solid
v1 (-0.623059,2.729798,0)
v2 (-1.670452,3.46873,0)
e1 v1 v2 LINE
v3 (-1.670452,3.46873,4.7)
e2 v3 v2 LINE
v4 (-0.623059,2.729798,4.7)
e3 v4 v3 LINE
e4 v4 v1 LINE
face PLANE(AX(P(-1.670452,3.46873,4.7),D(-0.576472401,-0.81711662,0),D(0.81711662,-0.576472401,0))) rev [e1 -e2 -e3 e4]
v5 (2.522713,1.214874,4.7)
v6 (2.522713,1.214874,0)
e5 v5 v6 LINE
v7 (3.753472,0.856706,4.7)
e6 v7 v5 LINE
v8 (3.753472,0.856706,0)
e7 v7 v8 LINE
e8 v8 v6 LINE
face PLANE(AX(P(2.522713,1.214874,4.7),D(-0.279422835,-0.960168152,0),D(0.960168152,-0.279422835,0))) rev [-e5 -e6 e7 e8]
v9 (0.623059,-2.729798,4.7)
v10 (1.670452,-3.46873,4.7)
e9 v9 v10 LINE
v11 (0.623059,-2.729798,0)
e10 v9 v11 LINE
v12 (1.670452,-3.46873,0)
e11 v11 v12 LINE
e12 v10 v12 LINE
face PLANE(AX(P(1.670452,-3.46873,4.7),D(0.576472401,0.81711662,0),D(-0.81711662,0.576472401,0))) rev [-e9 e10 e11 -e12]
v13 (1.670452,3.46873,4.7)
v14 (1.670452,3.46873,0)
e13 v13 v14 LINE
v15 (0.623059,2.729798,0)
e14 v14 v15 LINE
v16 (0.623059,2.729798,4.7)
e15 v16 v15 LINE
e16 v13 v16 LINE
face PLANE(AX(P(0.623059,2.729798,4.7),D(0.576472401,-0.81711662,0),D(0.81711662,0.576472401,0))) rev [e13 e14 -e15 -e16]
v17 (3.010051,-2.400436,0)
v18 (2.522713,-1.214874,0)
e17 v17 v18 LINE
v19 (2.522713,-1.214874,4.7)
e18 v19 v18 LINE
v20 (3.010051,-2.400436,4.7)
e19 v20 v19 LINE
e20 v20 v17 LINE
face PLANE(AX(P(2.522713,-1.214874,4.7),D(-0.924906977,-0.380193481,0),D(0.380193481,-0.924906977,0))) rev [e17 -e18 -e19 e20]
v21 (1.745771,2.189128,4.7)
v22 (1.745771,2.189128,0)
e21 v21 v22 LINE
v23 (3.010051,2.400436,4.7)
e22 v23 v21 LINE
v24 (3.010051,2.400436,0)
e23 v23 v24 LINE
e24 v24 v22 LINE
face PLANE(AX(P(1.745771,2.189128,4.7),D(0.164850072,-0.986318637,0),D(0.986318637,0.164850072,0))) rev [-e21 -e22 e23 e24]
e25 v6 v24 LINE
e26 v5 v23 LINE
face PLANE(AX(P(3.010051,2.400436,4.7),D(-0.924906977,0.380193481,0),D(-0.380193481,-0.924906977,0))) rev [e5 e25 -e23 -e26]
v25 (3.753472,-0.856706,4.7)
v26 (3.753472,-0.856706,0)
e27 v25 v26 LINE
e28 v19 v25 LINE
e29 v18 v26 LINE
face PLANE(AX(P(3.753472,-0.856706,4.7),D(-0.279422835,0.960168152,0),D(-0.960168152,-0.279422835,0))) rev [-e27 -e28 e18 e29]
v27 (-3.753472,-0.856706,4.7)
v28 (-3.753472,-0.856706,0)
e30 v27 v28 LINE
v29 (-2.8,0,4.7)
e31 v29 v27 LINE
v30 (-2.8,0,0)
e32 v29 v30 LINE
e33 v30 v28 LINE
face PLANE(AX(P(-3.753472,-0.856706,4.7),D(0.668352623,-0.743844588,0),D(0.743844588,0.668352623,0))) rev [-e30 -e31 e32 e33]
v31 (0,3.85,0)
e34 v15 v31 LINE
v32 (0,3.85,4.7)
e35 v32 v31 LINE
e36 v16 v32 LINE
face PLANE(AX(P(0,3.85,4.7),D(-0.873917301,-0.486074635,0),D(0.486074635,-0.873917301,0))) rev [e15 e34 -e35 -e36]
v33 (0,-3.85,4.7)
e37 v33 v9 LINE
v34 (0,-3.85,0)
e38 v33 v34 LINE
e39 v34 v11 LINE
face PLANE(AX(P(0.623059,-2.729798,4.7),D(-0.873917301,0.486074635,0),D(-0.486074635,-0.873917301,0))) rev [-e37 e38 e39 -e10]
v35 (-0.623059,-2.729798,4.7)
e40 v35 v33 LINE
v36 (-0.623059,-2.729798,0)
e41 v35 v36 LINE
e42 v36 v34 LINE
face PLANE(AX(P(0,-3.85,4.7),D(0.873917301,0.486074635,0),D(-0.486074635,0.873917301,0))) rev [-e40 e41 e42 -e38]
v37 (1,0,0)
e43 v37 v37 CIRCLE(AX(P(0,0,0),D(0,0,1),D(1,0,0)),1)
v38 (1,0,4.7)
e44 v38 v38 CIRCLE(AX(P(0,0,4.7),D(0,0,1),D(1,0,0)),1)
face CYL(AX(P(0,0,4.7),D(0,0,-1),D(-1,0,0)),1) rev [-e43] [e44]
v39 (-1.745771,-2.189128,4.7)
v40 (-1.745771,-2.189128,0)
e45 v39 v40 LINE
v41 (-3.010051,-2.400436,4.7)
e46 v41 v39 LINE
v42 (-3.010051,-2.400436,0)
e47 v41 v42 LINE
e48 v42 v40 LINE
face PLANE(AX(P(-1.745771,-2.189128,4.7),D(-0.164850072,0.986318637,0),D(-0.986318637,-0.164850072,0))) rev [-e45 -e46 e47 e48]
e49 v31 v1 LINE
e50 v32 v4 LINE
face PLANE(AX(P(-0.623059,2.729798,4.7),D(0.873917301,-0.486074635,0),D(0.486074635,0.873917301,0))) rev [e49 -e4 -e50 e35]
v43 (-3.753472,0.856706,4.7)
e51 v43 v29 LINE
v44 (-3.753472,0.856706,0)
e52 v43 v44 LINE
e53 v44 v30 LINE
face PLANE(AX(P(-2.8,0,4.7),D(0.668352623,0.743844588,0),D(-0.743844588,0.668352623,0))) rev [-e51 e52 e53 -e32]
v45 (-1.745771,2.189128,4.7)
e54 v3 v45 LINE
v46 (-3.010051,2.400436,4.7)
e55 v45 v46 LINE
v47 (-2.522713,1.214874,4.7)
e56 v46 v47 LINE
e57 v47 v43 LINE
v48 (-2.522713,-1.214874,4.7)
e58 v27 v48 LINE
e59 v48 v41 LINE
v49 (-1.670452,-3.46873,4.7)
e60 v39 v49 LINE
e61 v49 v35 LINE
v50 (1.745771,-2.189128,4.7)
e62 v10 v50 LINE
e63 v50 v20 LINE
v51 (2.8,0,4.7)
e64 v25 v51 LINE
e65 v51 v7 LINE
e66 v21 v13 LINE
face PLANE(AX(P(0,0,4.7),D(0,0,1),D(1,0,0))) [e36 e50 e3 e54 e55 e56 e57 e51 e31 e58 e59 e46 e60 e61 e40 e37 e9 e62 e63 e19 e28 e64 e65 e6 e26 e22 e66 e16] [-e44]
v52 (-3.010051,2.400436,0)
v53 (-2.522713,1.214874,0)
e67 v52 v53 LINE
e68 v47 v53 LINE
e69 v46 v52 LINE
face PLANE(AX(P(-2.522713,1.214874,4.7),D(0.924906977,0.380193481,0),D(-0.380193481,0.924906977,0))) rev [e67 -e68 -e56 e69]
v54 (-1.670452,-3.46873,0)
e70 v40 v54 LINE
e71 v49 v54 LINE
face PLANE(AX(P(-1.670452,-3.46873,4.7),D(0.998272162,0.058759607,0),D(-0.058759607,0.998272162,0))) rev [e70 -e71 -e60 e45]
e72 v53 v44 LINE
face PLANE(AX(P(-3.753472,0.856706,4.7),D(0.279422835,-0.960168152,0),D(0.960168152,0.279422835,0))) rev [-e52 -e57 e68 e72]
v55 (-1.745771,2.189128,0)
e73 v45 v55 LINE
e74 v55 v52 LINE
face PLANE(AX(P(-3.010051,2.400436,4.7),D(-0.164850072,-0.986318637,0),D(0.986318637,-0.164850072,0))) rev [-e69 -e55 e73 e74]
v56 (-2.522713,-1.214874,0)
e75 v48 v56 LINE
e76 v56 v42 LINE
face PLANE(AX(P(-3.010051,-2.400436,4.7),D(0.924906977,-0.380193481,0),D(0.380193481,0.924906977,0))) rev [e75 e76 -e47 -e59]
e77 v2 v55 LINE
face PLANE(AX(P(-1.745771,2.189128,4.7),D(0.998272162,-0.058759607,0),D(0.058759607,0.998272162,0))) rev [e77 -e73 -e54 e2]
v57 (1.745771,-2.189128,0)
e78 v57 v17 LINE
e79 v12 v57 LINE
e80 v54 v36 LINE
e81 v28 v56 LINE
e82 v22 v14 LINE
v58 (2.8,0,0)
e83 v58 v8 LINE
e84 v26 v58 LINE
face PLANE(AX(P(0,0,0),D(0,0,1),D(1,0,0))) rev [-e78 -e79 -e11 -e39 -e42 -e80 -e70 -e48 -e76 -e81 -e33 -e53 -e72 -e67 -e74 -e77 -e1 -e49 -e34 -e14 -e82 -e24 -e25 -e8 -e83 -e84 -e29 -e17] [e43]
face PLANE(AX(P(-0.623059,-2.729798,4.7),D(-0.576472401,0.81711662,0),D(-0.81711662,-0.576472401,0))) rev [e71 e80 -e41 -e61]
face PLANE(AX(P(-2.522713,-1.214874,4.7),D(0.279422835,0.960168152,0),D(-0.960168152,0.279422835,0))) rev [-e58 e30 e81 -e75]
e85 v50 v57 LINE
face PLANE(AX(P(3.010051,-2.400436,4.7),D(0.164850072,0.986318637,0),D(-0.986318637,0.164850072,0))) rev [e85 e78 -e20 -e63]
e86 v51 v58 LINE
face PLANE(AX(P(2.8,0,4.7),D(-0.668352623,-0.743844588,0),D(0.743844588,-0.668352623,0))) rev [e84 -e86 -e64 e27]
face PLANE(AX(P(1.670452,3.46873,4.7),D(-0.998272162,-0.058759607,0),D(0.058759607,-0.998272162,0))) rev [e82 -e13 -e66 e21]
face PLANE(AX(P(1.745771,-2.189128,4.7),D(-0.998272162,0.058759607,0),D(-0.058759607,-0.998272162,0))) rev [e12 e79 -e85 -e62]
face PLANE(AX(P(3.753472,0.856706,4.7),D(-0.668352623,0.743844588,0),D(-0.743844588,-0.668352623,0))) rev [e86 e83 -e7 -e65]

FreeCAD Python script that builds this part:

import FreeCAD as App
import Part
import Sketcher

V = App.Vector


def add_polygon(sketch, points):
    """Adds a closed chain of lines whose ends are joined by coincident constraints."""
    first, n = sketch.GeometryCount, len(points)
    for a, b in zip(points, points[1:] + points[:1]):
        sketch.addGeometry(Part.LineSegment(App.Vector(*a, 0), App.Vector(*b, 0)), False)
    for i in range(n):
        sketch.addConstraint(Sketcher.Constraint("Coincident", first + i, 2, first + (i + 1) % n, 1))

doc = App.newDocument("Part")
body = doc.addObject("PartDesign::Body", "Body")

# Sketch on XY plane
sketch1 = body.newObject("Sketcher::SketchObject", "Sketch")
sketch1.AttachmentSupport = (doc.getObject("XY_Plane"), [""])
sketch1.MapMode = "FlatFace"
add_polygon(sketch1, [(0.623059, 2.729798), (0, 3.85), (-0.623059, 2.729798), (-1.670452, 3.46873), (-1.745771, 2.189128), (-3.010051, 2.400436), (-2.522713, 1.214874), (-3.753472, 0.856706), (-2.8, 0), (-3.753472, -0.856706), (-2.522713, -1.214874), (-3.010051, -2.400436), (-1.745771, -2.189128), (-1.670452, -3.46873), (-0.623059, -2.729798), (0, -3.85), (0.623059, -2.729798), (1.670452, -3.46873), (1.745771, -2.189128), (3.010051, -2.400436), (2.522713, -1.214874), (3.753472, -0.856706), (2.8, 0), (3.753472, 0.856706), (2.522713, 1.214874), (3.010051, 2.400436), (1.745771, 2.189128), (1.670452, 3.46873)])  # lines 0-27
sketch1.addGeometry(Part.Circle(V(0, 0, 0), V(0, 0, 1), 1), False)  # 28
sketch1.addConstraint(Sketcher.Constraint("Coincident", 28, 3, -1, 1))
sketch1.addConstraint(Sketcher.Constraint("PointOnObject", 0, 2, -2))
sketch1.addConstraint(Sketcher.Constraint("PointOnObject", 7, 2, -1))
sketch1.addConstraint(Sketcher.Constraint("PointOnObject", 14, 2, -2))
sketch1.addConstraint(Sketcher.Constraint("PointOnObject", 21, 2, -1))
sketch1.addConstraint(Sketcher.Constraint("Diameter", 28, 2.0))
sketch1.addConstraint(Sketcher.Constraint("DistanceX", 7, 2, -1, 1, 2.8))
sketch1.addConstraint(Sketcher.Constraint("DistanceX", -1, 1, 21, 2, 2.8))
sketch1.addConstraint(Sketcher.Constraint("DistanceY", -1, 1, 0, 2, 3.85))
sketch1.addConstraint(Sketcher.Constraint("DistanceY", 14, 2, -1, 1, 3.85))
sketch1.addConstraint(Sketcher.Constraint("DistanceY", -1, 1, 1, 2, 2.729798))
sketch1.addConstraint(Sketcher.Constraint("DistanceY", 13, 2, -1, 1, 2.729798))
sketch1.addConstraint(Sketcher.Constraint("DistanceY", 15, 2, -1, 1, 2.729798))
sketch1.addConstraint(Sketcher.Constraint("DistanceY", -1, 1, 27, 2, 2.729798))
sketch1.addConstraint(Sketcher.Constraint("DistanceY", 3, 2, 2, 2, 1.279602))
sketch1.addConstraint(Sketcher.Constraint("DistanceX", 4, 2, 2, 2, 1.339599))
sketch1.addConstraint(Sketcher.Constraint("DistanceX", 6, 2, 3, 2, 2.007701))
sketch1.addConstraint(Sketcher.Constraint("DistanceX", 8, 2, 3, 2, 2.007701))
sketch1.addConstraint(Sketcher.Constraint("DistanceX", 8, 2, 11, 2, 2.007701))
sketch1.addConstraint(Sketcher.Constraint("DistanceY", 12, 2, 11, 2, 1.279602))
sketch1.addConstraint(Sketcher.Constraint("DistanceX", 10, 2, 12, 2, 1.339599))
sketch1.addConstraint(Sketcher.Constraint("DistanceY", 16, 2, 11, 2, 1.279602))
sketch1.addConstraint(Sketcher.Constraint("DistanceY", 16, 2, 17, 2, 1.279602))
sketch1.addConstraint(Sketcher.Constraint("DistanceX", 16, 2, 18, 2, 1.339599))
sketch1.addConstraint(Sketcher.Constraint("DistanceX", 17, 2, 20, 2, 2.007701))
sketch1.addConstraint(Sketcher.Constraint("DistanceX", 17, 2, 22, 2, 2.007701))
sketch1.addConstraint(Sketcher.Constraint("DistanceX", 25, 2, 22, 2, 2.007701))
sketch1.addConstraint(Sketcher.Constraint("DistanceY", 25, 2, 26, 2, 1.279602))
sketch1.addConstraint(Sketcher.Constraint("DistanceX", 26, 2, 24, 2, 1.339599))
sketch1.addConstraint(Sketcher.Constraint("DistanceX", 1, 2, -1, 1, 0.623059))
sketch1.addConstraint(Sketcher.Constraint("DistanceY", -1, 1, 2, 2, 3.46873))
sketch1.addConstraint(Sketcher.Constraint("DistanceX", 3, 2, -1, 1, 1.745771))
sketch1.addConstraint(Sketcher.Constraint("DistanceX", 4, 2, -1, 1, 3.010051))
sketch1.addConstraint(Sketcher.Constraint("DistanceX", 10, 2, -1, 1, 3.010051))
sketch1.addConstraint(Sketcher.Constraint("DistanceY", 11, 2, -1, 1, 2.189128))
sketch1.addConstraint(Sketcher.Constraint("DistanceX", 13, 2, -1, 1, 0.623059))
sketch1.addConstraint(Sketcher.Constraint("DistanceX", -1, 1, 15, 2, 0.623059))
sketch1.addConstraint(Sketcher.Constraint("DistanceX", -1, 1, 17, 2, 1.745771))
sketch1.addConstraint(Sketcher.Constraint("DistanceX", -1, 1, 18, 2, 3.010051))
sketch1.addConstraint(Sketcher.Constraint("DistanceX", -1, 1, 24, 2, 3.010051))
sketch1.addConstraint(Sketcher.Constraint("DistanceY", -1, 1, 25, 2, 2.189128))
sketch1.addConstraint(Sketcher.Constraint("DistanceX", -1, 1, 27, 2, 0.623059))
sketch1.addConstraint(Sketcher.Constraint("DistanceX", 5, 2, 3, 2, 0.776941))
sketch1.addConstraint(Sketcher.Constraint("DistanceY", 5, 2, 4, 2, 1.185561))
sketch1.addConstraint(Sketcher.Constraint("DistanceY", 6, 2, 5, 2, 0.358169))
sketch1.addConstraint(Sketcher.Constraint("DistanceY", 8, 2, 6, 2, 1.713411))
sketch1.addConstraint(Sketcher.Constraint("DistanceX", 8, 2, 9, 2, 1.23076))
sketch1.addConstraint(Sketcher.Constraint("DistanceY", 9, 2, 8, 2, 0.358169))
sketch1.addConstraint(Sketcher.Constraint("DistanceY", 10, 2, 9, 2, 1.185561))
sketch1.addConstraint(Sketcher.Constraint("DistanceX", 17, 2, 19, 2, 0.776941))
sketch1.addConstraint(Sketcher.Constraint("DistanceY", 18, 2, 19, 2, 1.185561))
sketch1.addConstraint(Sketcher.Constraint("DistanceY", 19, 2, 20, 2, 0.358169))
sketch1.addConstraint(Sketcher.Constraint("DistanceY", 20, 2, 22, 2, 1.713411))
sketch1.addConstraint(Sketcher.Constraint("DistanceX", 23, 2, 22, 2, 1.23076))
sketch1.addConstraint(Sketcher.Constraint("DistanceY", 22, 2, 23, 2, 0.358169))
sketch1.addConstraint(Sketcher.Constraint("DistanceY", 23, 2, 24, 2, 1.185561))
sketch1.addConstraint(Sketcher.Constraint("Distance", 4, 1.281817))
sketch1.addConstraint(Sketcher.Constraint("Distance", 18, 1.281817))
pad1 = body.newObject("PartDesign::Pad", "Pad")
pad1.Profile = sketch1
pad1.Length = 4.7

doc.recompute()
